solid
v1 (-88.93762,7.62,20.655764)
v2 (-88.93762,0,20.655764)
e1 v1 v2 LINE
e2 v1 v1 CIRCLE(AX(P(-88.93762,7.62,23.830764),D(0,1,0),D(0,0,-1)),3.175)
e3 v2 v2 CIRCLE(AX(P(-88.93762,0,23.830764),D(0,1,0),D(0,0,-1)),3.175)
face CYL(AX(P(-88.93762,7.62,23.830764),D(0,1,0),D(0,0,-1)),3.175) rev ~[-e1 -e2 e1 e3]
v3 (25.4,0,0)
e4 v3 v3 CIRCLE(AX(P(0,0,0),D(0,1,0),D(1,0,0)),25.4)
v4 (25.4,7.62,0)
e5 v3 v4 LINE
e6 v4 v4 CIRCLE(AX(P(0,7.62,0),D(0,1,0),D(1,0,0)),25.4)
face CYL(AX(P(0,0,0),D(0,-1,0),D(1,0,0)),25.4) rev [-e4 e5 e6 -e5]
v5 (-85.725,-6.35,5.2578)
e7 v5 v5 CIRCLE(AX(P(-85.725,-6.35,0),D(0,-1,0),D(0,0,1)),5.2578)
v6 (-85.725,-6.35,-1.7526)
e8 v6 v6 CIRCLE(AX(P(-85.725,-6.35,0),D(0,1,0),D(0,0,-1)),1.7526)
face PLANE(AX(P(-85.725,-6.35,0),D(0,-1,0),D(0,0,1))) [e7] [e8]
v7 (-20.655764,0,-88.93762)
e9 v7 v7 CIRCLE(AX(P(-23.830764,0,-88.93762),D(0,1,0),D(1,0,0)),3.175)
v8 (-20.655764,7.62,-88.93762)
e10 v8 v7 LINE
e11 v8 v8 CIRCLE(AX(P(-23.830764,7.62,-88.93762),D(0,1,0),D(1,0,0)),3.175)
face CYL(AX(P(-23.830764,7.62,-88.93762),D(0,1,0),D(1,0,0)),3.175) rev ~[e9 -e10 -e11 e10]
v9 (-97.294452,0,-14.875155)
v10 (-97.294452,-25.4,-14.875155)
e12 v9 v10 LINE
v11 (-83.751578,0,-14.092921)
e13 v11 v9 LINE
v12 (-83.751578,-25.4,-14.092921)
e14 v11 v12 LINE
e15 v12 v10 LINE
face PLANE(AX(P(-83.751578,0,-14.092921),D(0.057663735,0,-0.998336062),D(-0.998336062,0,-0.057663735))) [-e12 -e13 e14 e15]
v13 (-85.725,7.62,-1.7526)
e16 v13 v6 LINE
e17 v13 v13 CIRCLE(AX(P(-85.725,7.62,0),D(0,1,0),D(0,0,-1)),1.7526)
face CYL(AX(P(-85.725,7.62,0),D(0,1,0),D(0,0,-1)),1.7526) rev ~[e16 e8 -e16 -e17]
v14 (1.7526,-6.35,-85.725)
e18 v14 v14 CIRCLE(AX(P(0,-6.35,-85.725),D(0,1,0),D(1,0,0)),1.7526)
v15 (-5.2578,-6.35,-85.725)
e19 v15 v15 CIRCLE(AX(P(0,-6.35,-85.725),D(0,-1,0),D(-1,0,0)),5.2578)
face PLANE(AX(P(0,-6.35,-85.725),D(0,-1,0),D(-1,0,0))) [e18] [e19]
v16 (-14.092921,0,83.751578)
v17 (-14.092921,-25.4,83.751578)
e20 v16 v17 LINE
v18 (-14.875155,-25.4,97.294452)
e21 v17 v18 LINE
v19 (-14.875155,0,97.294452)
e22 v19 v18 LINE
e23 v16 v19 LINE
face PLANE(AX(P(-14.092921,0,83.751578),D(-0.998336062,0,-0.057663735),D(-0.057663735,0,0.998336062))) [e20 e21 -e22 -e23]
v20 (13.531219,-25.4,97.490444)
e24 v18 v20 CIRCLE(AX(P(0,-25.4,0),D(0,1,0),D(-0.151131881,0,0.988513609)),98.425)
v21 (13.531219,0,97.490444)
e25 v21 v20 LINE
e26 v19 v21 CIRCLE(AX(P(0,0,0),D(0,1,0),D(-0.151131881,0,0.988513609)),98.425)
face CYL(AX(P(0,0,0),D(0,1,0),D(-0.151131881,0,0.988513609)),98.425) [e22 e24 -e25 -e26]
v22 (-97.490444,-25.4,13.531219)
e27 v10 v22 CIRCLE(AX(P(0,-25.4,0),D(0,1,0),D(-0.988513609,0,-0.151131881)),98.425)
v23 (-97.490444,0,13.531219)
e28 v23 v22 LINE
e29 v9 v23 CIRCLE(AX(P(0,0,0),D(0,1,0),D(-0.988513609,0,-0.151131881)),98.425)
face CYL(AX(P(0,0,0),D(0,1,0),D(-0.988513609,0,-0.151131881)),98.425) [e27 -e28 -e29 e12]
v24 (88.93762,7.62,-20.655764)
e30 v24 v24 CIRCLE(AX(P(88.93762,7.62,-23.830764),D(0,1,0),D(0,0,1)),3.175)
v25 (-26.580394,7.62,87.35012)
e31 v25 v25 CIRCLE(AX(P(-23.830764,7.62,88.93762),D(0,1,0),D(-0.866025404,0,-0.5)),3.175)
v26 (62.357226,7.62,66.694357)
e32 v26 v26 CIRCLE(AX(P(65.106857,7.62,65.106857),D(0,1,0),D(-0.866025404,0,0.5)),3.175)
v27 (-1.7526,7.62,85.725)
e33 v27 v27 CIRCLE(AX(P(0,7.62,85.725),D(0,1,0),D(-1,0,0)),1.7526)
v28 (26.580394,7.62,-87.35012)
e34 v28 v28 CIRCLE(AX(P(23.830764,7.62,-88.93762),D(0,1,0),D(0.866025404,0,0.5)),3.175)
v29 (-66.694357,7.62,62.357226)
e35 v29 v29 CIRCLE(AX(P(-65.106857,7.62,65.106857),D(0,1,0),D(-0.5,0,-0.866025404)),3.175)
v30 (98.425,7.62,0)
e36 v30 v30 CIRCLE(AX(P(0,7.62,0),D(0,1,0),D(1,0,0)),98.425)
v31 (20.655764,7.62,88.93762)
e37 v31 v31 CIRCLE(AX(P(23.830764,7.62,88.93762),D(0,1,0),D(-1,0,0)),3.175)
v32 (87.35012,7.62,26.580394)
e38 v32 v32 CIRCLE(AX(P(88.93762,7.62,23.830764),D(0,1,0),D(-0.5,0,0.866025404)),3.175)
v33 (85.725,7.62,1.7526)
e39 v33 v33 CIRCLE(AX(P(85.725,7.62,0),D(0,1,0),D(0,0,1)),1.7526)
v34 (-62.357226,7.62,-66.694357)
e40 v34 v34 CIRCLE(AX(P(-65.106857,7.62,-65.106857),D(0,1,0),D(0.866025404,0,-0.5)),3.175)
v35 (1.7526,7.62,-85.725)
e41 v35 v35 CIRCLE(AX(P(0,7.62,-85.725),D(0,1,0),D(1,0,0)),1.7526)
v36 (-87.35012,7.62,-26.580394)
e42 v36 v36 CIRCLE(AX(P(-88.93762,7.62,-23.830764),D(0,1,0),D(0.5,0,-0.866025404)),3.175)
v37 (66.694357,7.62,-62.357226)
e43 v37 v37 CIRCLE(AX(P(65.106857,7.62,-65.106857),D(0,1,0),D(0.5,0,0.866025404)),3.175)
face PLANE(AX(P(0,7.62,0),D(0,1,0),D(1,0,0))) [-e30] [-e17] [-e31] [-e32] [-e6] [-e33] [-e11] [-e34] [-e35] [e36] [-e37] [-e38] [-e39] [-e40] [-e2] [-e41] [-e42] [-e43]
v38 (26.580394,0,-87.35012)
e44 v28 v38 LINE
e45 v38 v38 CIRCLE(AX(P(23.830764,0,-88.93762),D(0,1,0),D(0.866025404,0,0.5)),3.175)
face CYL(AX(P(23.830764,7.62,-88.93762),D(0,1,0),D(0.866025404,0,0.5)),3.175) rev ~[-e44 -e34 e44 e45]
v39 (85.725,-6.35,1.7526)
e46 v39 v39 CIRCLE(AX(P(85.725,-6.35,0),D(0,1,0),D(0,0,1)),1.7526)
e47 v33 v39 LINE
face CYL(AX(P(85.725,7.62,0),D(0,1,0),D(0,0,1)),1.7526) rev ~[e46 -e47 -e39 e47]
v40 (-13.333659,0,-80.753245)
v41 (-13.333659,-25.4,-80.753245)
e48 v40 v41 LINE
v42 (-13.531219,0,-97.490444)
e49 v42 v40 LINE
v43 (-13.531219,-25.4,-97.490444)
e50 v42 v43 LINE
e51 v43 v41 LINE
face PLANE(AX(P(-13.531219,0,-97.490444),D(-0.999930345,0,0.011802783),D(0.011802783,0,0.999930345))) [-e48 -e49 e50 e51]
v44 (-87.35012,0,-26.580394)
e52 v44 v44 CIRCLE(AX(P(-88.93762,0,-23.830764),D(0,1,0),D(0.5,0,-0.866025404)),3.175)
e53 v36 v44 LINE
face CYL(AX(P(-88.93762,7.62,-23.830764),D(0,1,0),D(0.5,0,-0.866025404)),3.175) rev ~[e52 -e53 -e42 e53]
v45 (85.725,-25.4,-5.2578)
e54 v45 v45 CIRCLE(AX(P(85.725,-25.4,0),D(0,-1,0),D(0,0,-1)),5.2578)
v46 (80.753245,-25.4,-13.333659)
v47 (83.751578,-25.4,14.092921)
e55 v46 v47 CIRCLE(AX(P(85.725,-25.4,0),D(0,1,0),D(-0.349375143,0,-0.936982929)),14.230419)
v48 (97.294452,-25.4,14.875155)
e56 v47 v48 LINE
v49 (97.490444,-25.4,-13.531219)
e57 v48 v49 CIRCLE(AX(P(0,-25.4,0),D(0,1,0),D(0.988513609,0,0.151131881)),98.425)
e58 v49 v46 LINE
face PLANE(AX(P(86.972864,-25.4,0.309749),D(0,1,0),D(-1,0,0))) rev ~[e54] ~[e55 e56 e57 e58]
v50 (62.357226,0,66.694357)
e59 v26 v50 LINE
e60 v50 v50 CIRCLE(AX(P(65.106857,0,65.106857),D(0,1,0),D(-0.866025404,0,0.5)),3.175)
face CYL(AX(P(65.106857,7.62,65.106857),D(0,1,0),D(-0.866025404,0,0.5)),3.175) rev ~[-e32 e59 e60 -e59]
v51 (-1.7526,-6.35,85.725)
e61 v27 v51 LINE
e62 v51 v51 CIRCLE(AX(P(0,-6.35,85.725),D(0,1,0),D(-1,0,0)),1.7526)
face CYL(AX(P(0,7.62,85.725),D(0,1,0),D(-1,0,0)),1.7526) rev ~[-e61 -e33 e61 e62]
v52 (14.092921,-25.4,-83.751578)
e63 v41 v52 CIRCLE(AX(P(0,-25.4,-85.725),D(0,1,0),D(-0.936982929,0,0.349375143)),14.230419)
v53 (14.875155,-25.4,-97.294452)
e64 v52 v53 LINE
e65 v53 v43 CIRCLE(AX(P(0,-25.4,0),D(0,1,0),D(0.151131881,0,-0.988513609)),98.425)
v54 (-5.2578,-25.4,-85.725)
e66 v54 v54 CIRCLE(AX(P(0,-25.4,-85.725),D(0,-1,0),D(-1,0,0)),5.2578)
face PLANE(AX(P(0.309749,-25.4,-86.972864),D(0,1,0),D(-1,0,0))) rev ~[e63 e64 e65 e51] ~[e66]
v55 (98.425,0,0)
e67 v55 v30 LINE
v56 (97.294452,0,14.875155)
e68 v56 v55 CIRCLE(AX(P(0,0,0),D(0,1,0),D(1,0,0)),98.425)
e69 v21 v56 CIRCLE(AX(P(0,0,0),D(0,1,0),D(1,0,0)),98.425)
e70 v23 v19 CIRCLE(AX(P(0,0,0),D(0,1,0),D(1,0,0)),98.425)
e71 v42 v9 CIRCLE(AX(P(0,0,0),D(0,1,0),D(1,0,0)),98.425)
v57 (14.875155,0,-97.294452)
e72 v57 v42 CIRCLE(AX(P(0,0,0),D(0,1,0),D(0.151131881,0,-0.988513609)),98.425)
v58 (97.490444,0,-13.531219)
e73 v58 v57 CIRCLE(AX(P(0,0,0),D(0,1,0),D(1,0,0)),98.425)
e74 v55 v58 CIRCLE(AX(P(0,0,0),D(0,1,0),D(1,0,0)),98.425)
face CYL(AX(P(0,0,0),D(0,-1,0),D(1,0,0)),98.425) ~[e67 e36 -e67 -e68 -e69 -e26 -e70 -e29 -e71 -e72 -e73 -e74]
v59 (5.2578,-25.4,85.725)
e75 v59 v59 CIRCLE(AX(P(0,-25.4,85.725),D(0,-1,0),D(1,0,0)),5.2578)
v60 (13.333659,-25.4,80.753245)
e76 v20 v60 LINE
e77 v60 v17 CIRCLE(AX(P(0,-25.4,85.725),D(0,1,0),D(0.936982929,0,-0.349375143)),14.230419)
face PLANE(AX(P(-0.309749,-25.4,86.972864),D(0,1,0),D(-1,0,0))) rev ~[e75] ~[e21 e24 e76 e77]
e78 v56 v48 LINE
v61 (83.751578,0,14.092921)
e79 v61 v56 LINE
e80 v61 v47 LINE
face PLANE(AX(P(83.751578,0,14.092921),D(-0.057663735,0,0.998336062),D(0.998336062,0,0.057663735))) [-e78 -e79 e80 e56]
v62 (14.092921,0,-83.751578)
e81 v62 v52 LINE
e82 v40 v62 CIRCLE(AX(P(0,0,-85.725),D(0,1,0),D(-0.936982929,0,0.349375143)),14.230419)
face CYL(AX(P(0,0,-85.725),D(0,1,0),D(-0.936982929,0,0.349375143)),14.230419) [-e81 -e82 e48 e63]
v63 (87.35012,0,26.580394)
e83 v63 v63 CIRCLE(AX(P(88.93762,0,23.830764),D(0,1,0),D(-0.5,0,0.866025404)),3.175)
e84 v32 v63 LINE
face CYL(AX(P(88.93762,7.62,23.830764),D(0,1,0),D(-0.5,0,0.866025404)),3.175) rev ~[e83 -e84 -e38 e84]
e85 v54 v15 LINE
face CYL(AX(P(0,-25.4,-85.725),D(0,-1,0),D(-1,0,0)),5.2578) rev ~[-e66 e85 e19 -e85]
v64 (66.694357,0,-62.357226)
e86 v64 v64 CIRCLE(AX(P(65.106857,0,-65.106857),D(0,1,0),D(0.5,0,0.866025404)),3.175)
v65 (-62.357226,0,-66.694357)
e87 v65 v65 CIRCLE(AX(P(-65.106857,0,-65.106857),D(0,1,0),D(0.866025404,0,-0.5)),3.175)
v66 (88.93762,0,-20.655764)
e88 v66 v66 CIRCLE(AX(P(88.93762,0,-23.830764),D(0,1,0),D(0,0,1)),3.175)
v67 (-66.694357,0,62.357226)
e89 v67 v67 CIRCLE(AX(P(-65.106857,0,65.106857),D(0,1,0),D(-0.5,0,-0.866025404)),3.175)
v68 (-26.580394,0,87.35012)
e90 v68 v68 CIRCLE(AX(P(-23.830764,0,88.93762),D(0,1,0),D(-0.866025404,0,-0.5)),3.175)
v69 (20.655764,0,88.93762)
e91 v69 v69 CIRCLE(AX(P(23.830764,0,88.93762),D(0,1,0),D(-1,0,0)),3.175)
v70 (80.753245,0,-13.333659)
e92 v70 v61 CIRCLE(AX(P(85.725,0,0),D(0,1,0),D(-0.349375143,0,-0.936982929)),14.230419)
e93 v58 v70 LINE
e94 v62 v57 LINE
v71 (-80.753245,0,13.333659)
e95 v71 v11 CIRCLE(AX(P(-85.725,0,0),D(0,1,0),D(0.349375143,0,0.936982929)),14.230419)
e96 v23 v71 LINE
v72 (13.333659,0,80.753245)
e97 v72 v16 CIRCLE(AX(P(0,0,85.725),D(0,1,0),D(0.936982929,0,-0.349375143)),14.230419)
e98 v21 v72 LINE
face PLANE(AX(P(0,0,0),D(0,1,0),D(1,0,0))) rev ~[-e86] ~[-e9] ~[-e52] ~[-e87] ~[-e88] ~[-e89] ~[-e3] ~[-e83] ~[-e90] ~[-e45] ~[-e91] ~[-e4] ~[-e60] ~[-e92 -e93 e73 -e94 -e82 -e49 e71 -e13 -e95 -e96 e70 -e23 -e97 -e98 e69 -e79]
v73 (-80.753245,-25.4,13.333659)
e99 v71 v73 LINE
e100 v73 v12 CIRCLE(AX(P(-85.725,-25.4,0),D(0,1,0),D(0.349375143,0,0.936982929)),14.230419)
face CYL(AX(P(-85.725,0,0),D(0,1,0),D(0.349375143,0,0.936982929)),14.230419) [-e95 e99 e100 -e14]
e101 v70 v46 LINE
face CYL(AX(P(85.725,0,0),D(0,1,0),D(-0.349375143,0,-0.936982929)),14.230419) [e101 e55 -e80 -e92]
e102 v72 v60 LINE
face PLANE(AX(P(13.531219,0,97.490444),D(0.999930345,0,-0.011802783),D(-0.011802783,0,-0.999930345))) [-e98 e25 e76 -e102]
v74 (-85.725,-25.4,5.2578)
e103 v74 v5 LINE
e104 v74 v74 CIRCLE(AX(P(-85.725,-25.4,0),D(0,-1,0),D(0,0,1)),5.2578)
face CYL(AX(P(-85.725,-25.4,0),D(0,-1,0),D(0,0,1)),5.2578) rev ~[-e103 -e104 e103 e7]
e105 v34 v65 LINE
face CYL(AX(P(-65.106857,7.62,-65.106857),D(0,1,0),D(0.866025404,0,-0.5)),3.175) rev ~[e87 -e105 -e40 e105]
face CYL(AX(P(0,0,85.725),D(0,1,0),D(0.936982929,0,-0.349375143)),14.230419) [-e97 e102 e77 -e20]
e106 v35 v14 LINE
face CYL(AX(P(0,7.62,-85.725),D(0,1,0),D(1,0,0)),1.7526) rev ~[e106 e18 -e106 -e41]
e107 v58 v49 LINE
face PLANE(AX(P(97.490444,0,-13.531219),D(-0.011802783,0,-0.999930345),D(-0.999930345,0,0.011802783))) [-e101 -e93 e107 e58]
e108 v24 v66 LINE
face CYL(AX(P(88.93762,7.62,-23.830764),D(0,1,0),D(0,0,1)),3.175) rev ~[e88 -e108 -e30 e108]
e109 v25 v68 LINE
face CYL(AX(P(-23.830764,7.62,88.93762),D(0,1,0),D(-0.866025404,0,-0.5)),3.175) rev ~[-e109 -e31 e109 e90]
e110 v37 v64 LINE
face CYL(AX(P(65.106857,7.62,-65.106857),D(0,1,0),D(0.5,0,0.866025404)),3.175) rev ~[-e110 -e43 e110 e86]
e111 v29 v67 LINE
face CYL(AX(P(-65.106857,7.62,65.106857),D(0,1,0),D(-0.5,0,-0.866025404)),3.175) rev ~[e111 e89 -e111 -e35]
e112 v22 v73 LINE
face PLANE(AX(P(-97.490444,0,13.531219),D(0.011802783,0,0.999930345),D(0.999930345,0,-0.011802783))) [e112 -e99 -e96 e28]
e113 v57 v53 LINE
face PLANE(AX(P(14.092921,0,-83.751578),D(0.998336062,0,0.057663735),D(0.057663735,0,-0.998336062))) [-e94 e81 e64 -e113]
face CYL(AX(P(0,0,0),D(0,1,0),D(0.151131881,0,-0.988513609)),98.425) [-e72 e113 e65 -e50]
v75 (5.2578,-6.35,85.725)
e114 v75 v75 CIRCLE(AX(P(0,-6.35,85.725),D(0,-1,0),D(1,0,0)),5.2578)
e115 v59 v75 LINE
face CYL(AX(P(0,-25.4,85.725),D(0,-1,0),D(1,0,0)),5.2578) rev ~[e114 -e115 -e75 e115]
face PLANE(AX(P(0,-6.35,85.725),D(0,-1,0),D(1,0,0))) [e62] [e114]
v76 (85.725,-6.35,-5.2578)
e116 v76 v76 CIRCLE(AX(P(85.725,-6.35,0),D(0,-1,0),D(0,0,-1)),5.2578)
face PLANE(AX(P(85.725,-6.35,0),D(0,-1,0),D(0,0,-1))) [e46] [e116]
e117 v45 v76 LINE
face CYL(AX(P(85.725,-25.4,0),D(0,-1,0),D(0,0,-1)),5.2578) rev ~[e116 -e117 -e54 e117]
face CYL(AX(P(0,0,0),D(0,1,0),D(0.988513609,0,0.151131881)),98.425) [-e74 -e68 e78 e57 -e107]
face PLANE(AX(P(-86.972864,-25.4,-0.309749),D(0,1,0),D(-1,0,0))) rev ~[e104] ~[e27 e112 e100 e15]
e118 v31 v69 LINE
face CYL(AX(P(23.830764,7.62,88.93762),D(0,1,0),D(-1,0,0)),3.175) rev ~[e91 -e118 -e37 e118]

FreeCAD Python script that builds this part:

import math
import FreeCAD as App
import Part
import Sketcher

V = App.Vector
Q = App.Units.Quantity

doc = App.newDocument("Part")
body = doc.addObject("PartDesign::Body", "Body")

# Sketch on XZ plane
sketch1 = body.newObject("Sketcher::SketchObject", "Sketch")
sketch1.AttachmentSupport = (doc.getObject("XZ_Plane"), [""])
sketch1.MapMode = "FlatFace"
sketch1.addGeometry([
    Part.Circle(V(0, 0, 0), V(0, 0, 1), 98.425),
    Part.Circle(V(0, 0, 0), V(0, 0, 1), 25.4),
], False)
sketch1.addConstraint([
    Sketcher.Constraint("Coincident", 0, 3, -1, 1),
    Sketcher.Constraint("Coincident", 1, 3, -1, 1),
    Sketcher.Constraint("Diameter", 1, Q("2 in")),
    Sketcher.Constraint("Diameter", 0, Q("7.75 in")),
])
pad1 = body.newObject("PartDesign::Pad", "Pad")
pad1.Profile = sketch1
pad1.Length = Q("0.3 in")
pad1.Reversed = True

# Sketch on XZ plane
sketch2 = body.newObject("Sketcher::SketchObject", "Sketch001")
sketch2.AttachmentSupport = (doc.getObject("XZ_Plane"), [""])
sketch2.MapMode = "FlatFace"
sketch2.addGeometry([
    Part.LineSegment(V(-14.875155, 97.294452, 0), V(-14.092921, 83.751578, 0)),  # 0
    Part.ArcOfCircle(Part.Circle(V(0, 85.725, 0), V(0, 0, 1), 14.230419), math.radians(-172.028742), math.radians(-20.449101)),  # 1
    Part.LineSegment(V(13.333659, 80.753245, 0), V(13.531219, 97.490444, 0)),  # 2
    Part.ArcOfCircle(Part.Circle(V(0, 0, 0), V(0, 0, 1), 98.425), math.radians(82.098096), math.radians(98.692526)),  # 3
    Part.LineSegment(V(97.294452, 14.875155, 0), V(83.751578, 14.092921, 0)),  # 4
    Part.ArcOfCircle(Part.Circle(V(85.725, 0, 0), V(0, 0, 1), 14.230419), math.radians(97.971258), math.radians(249.550899)),  # 5
    Part.LineSegment(V(80.753245, -13.333659, 0), V(97.490444, -13.531219, 0)),  # 6
    Part.ArcOfCircle(Part.Circle(V(0, 0, 0), V(0, 0, 1), 98.425), math.radians(-7.901904), math.radians(8.692526)),  # 7
    Part.LineSegment(V(14.875155, -97.294452, 0), V(14.092921, -83.751578, 0)),  # 8
    Part.ArcOfCircle(Part.Circle(V(0, -85.725, 0), V(0, 0, 1), 14.230419), math.radians(7.971258), math.radians(159.550899)),  # 9
    Part.LineSegment(V(-13.333659, -80.753245, 0), V(-13.531219, -97.490444, 0)),  # 10
    Part.ArcOfCircle(Part.Circle(V(0, 0, 0), V(0, 0, 1), 98.425), math.radians(-97.901904), math.radians(-81.307474)),  # 11
    Part.LineSegment(V(-97.294452, -14.875155, 0), V(-83.751578, -14.092921, 0)),  # 12
    Part.ArcOfCircle(Part.Circle(V(-85.725, 0, 0), V(0, 0, 1), 14.230419), math.radians(-82.028742), math.radians(69.550899)),  # 13
    Part.LineSegment(V(-80.753245, 13.333659, 0), V(-97.490444, 13.531219, 0)),  # 14
    Part.ArcOfCircle(Part.Circle(V(0, 0, 0), V(0, 0, 1), 98.425), math.radians(172.098096), math.radians(188.692526)),  # 15
], False)
sketch2.addConstraint([
    Sketcher.Constraint("Coincident", 0, 2, 1, 1),
    Sketcher.Constraint("Coincident", 1, 2, 2, 1),
    Sketcher.Constraint("Coincident", 2, 2, 3, 1),
    Sketcher.Constraint("Coincident", 3, 2, 0, 1),
    Sketcher.Constraint("Coincident", 4, 2, 5, 1),
    Sketcher.Constraint("Coincident", 5, 2, 6, 1),
    Sketcher.Constraint("Coincident", 6, 2, 7, 1),
    Sketcher.Constraint("Coincident", 7, 2, 4, 1),
    Sketcher.Constraint("Coincident", 8, 2, 9, 1),
    Sketcher.Constraint("Coincident", 9, 2, 10, 1),
    Sketcher.Constraint("Coincident", 10, 2, 11, 1),
    Sketcher.Constraint("Coincident", 11, 2, 8, 1),
    Sketcher.Constraint("Coincident", 12, 2, 13, 1),
    Sketcher.Constraint("Coincident", 13, 2, 14, 1),
    Sketcher.Constraint("Coincident", 14, 2, 15, 1),
    Sketcher.Constraint("Coincident", 15, 2, 12, 1),
    Sketcher.Constraint("Coincident", 3, 3, -1, 1),
    Sketcher.Constraint("Coincident", 7, 3, -1, 1),
    Sketcher.Constraint("Coincident", 11, 3, -1, 1),
    Sketcher.Constraint("Coincident", 15, 3, -1, 1),
    Sketcher.Constraint("Equal", 1, 5),
    Sketcher.Constraint("Equal", 3, 7),
    Sketcher.Constraint("Equal", 5, 9),
    Sketcher.Constraint("Equal", 7, 11),
    Sketcher.Constraint("Equal", 9, 13),
    Sketcher.Constraint("Equal", 11, 15),
    Sketcher.Constraint("Symmetric", 1, 3, 9, 3, -1, 1),
    Sketcher.Constraint("Symmetric", 5, 3, 13, 3, -1, 1),
    Sketcher.Constraint("PointOnObject", 1, 3, -2),
    Sketcher.Constraint("PointOnObject", 5, 3, -1),
    Sketcher.Constraint("Perpendicular", 0, 4),
    Sketcher.Constraint("Perpendicular", 2, 6),
    Sketcher.Constraint("Perpendicular", 4, 8),
    Sketcher.Constraint("Perpendicular", 6, 10),
    Sketcher.Constraint("Perpendicular", 8, 12),
    Sketcher.Constraint("Perpendicular", 10, 14),
    Sketcher.Constraint("Equal", 0, 4),
    Sketcher.Constraint("Equal", 2, 6),
    Sketcher.Constraint("Equal", 4, 8),
    Sketcher.Constraint("Equal", 6, 10),
    Sketcher.Constraint("Equal", 8, 12),
    Sketcher.Constraint("Equal", 10, 14),
    Sketcher.Constraint("Radius", 3, Q("3.875 in")),
    Sketcher.Constraint("DistanceY", 9, 3, 1, 3, Q("6.75 in")),
    Sketcher.Constraint("DistanceX", -1, 1, 5, 3, Q("3.375 in")),
    Sketcher.Constraint("Radius", 1, Q("14.230419 mm")),
    Sketcher.Constraint("DistanceY", 1, 2, 2, 2, Q("16.737199 mm")),
    Sketcher.Constraint("DistanceX", 0, 2, -1, 1, Q("14.092921 mm")),
    Sketcher.Constraint("DistanceX", -1, 1, 1, 2, Q("13.333659 mm")),
    Sketcher.Constraint("DistanceY", -1, 1, 3, 2, Q("97.294452 mm")),
])
pad2 = body.newObject("PartDesign::Pad", "Pad001")
pad2.Profile = sketch2
pad2.Length = Q("1 in")

# Sketch on XZ plane
sketch3 = body.newObject("Sketcher::SketchObject", "Sketch002")
sketch3.AttachmentSupport = (doc.getObject("XZ_Plane"), [""])
sketch3.MapMode = "FlatFace"
sketch3.AttachmentOffset = App.Placement(V(0, 0, 1 * 25.4), App.Rotation())
sketch3.addGeometry(Part.Circle(V(0, 85.725, 0), V(0, 0, 1), 5.2578), False)
sketch3.addConstraint([
    Sketcher.Constraint("PointOnObject", 0, 3, -2),
    Sketcher.Constraint("Diameter", 0, Q("0.414 in")),
    Sketcher.Constraint("DistanceY", -1, 1, 0, 3, Q("3.375 in")),
])
pocket1 = body.newObject("PartDesign::Pocket", "Pocket")
pocket1.Profile = sketch3
pocket1.Length = Q("0.75 in")

# Sketch on XZ plane
sketch4 = body.newObject("Sketcher::SketchObject", "Sketch003")
sketch4.AttachmentSupport = (doc.getObject("XZ_Plane"), [""])
sketch4.MapMode = "FlatFace"
sketch4.AttachmentOffset = App.Placement(V(0, 0, -0.3 * 25.4), App.Rotation())
sketch4.addGeometry(Part.Circle(V(-23.830764, -88.93762, 0), V(0, 0, 1), 3.175), False)
sketch4.addConstraint([
    Sketcher.Constraint("Diameter", 0, Q("0.25 in")),
    Sketcher.Constraint("DistanceY", 0, 3, -1, 1, Q("88.93762 mm")),
    Sketcher.Constraint("DistanceX", 0, 3, -1, 1, Q("23.830764 mm")),
])
pocket2 = body.newObject("PartDesign::Pocket", "Pocket001")
pocket2.Profile = sketch4
pocket2.Length = Q("0.5 in")
pocket2.Reversed = True
doc.recompute()

polarpattern = body.newObject("PartDesign::PolarPattern", "PolarPattern")
polarpattern.Originals = [pocket2]
polarpattern.Axis = (doc.getObject("Y_Axis"), [""])
polarpattern.Angle = 360
polarpattern.Occurrences = 12
body.Tip = polarpattern
doc.recompute()

polarpattern2 = body.newObject("PartDesign::PolarPattern", "PolarPattern001")
polarpattern2.Originals = [pocket1]
polarpattern2.Axis = (doc.getObject("Y_Axis"), [""])
polarpattern2.Angle = 360
polarpattern2.Occurrences = 4
body.Tip = polarpattern2

# Sketch on XZ plane
sketch5 = body.newObject("Sketcher::SketchObject", "Sketch004")
sketch5.AttachmentSupport = (doc.getObject("XZ_Plane"), [""])
sketch5.MapMode = "FlatFace"
sketch5.AttachmentOffset = App.Placement(V(0, 0, -0.3 * 25.4), App.Rotation())
sketch5.addGeometry(Part.Circle(V(0, -85.725, 0), V(0, 0, 1), 1.7526), False)
sketch5.addConstraint([
    Sketcher.Constraint("PointOnObject", 0, 3, -2),
    Sketcher.Constraint("Diameter", 0, Q("0.138 in")),
    Sketcher.Constraint("DistanceY", 0, 3, -1, 1, Q("3.375 in")),
])
pocket3 = body.newObject("PartDesign::Pocket", "Pocket002")
pocket3.Profile = sketch5
pocket3.Type = "ThroughAll"
pocket3.Reversed = True
doc.recompute()

polarpattern3 = body.newObject("PartDesign::PolarPattern", "PolarPattern002")
polarpattern3.Originals = [pocket3]
polarpattern3.Axis = (doc.getObject("Y_Axis"), [""])
polarpattern3.Angle = 360
polarpattern3.Occurrences = 4
body.Tip = polarpattern3

doc.recompute()
